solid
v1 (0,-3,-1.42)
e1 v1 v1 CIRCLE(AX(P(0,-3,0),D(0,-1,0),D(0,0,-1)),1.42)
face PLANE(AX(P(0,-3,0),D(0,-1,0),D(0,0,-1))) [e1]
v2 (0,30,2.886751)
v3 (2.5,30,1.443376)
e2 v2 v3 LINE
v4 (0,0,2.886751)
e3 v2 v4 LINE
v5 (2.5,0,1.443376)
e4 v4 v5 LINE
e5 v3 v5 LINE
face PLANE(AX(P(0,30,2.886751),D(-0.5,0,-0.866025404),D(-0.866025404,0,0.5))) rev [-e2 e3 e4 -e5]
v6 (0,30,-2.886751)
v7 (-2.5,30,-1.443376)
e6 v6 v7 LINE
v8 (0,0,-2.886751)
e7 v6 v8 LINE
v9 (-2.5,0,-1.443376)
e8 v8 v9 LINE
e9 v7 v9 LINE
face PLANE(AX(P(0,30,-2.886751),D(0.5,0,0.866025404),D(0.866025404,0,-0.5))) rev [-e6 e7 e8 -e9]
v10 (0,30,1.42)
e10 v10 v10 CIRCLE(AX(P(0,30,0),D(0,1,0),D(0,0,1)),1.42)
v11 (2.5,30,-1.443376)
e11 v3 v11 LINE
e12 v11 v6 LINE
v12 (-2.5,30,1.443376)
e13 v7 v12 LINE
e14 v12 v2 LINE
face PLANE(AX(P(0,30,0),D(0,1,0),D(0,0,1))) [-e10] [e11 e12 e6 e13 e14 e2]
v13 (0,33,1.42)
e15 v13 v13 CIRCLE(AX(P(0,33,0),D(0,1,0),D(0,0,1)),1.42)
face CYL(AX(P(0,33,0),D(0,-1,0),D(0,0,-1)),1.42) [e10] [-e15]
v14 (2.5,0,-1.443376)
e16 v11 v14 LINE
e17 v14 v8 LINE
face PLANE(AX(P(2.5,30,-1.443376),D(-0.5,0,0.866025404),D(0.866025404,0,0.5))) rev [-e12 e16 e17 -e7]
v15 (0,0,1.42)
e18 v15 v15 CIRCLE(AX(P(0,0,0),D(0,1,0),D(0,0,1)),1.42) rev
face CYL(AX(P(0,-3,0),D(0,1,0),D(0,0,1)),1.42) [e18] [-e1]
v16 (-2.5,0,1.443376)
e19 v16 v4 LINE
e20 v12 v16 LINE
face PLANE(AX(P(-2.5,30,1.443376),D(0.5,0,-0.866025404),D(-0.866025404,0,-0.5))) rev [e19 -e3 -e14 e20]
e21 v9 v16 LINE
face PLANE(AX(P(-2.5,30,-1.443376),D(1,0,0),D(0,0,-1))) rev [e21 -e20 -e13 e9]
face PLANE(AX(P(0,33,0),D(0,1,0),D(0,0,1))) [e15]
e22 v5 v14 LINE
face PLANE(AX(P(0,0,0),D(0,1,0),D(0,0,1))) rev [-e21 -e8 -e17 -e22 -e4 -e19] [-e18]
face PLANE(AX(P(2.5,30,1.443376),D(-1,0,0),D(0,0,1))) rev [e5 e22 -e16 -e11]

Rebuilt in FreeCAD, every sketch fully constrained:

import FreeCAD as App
import Part
import Sketcher

V = App.Vector
Q = App.Units.Quantity


def add_polygon(sketch, points):
    """Adds a closed chain of lines whose ends are joined by coincident constraints."""
    first, n = sketch.GeometryCount, len(points)
    for a, b in zip(points, points[1:] + points[:1]):
        sketch.addGeometry(Part.LineSegment(App.Vector(*a, 0), App.Vector(*b, 0)), False)
    for i in range(n):
        sketch.addConstraint(Sketcher.Constraint("Coincident", first + i, 2, first + (i + 1) % n, 1))

doc = App.newDocument("Part")
body = doc.addObject("PartDesign::Body", "Body")

# Sketch on XZ plane
sketch1 = body.newObject("Sketcher::SketchObject", "Sketch")
sketch1.AttachmentSupport = (doc.getObject("XZ_Plane"), [""])
sketch1.MapMode = "FlatFace"
add_polygon(sketch1, [(0, -2.9), (-2.5, -1.4), (-2.5, 1.4), (0, 2.9), (2.5, 1.4), (2.5, -1.4)])  # lines 0-5
sketch1.addConstraint([
    Sketcher.Constraint("Vertical", 1),
    Sketcher.Constraint("Vertical", 4),
    Sketcher.Constraint("Symmetric", 0, 2, 3, 2, -1, 1),
    Sketcher.Constraint("Symmetric", 2, 2, 5, 2, -1, 1),
    Sketcher.Constraint("PointOnObject", 2, 2, -2),
    Sketcher.Constraint("Parallel", 2, 5),
    Sketcher.Constraint("Horizontal", 1, 2, 3, 2),
    Sketcher.Constraint("Angle", 0, Q("150 deg")),
    Sketcher.Constraint("DistanceX", 1, 2, 3, 2, 5.0),
    Sketcher.Constraint("DistanceY", 1, 1, 1, 2, 2.886751),
])
pad1 = body.newObject("PartDesign::Pad", "Pad")
pad1.Profile = sketch1
pad1.Length = 30
pad1.Reversed = True

# Sketch on XZ plane
sketch2 = body.newObject("Sketcher::SketchObject", "Sketch001")
sketch2.AttachmentSupport = (doc.getObject("XZ_Plane"), [""])
sketch2.MapMode = "FlatFace"
sketch2.AttachmentOffset = App.Placement(V(0, 0, -30), App.Rotation())
sketch2.addGeometry(Part.Circle(V(0, 0, 0), V(0, 0, 1), 1.4), False)
sketch2.addConstraint([
    Sketcher.Constraint("Coincident", 0, 3, -1, 1),
    Sketcher.Constraint("Diameter", 0, 2.84),
])
pad2 = body.newObject("PartDesign::Pad", "Pad001")
pad2.Profile = sketch2
pad2.Length = 3
pad2.Reversed = True

# Sketch on XZ plane
sketch3 = body.newObject("Sketcher::SketchObject", "Sketch002")
sketch3.AttachmentSupport = (doc.getObject("XZ_Plane"), [""])
sketch3.MapMode = "FlatFace"
sketch3.AttachmentOffset = App.Placement(V(0, 0, 3), App.Rotation())
sketch3.addGeometry(Part.Circle(V(0, 0, 0), V(0, 0, 1), 1.4), False)
sketch3.addConstraint([
    Sketcher.Constraint("Coincident", 0, 3, -1, 1),
    Sketcher.Constraint("Diameter", 0, 2.84),
])
pad3 = body.newObject("PartDesign::Pad", "Pad002")
pad3.Profile = sketch3
pad3.Length = 3
pad3.Reversed = True

doc.recompute()
